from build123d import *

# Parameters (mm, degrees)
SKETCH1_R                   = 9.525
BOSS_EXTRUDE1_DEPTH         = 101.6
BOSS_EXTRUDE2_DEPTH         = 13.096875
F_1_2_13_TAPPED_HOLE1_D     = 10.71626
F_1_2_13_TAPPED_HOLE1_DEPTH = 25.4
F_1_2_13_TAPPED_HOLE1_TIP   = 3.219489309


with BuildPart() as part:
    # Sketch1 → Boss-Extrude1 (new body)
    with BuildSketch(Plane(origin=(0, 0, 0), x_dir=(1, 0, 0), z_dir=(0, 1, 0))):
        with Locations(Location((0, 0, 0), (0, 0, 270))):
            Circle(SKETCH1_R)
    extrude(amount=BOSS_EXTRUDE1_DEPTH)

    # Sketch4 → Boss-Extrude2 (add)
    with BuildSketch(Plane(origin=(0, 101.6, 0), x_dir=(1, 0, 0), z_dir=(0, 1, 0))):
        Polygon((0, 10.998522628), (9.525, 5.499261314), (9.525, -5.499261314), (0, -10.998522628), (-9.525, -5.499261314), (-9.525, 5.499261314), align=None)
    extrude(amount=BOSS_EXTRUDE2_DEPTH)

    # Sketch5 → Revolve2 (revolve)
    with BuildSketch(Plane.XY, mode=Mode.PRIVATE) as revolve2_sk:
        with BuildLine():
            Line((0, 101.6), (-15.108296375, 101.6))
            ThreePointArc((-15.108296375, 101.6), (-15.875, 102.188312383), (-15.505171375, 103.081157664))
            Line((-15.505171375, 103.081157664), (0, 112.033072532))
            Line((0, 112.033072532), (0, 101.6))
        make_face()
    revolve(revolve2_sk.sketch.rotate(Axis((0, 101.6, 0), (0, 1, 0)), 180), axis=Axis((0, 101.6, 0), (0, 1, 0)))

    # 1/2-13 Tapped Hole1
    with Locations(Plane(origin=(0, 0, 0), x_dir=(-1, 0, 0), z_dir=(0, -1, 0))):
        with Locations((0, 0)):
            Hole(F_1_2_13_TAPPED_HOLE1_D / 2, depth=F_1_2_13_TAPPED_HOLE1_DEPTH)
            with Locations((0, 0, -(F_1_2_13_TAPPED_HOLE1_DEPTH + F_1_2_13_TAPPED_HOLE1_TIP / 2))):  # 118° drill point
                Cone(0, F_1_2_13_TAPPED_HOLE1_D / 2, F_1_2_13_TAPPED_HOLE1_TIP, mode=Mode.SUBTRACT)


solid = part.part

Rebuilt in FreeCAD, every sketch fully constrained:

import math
import FreeCAD as App
import Part
import Sketcher
from FreeCAD import Vector
Q = App.Units.Quantity


def add_polygon(sketch, points):
    """Adds a closed chain of lines whose ends are joined by coincident constraints."""
    first, n = sketch.GeometryCount, len(points)
    for a, b in zip(points, points[1:] + points[:1]):
        sketch.addGeometry(Part.LineSegment(App.Vector(*a, 0), App.Vector(*b, 0)), False)
    for i in range(n):
        sketch.addConstraint(Sketcher.Constraint("Coincident", first + i, 2, first + (i + 1) % n, 1))

doc = App.newDocument("Part")
body = doc.addObject("PartDesign::Body", "Body")

# Sketch on XZ plane
sketch1 = body.newObject("Sketcher::SketchObject", "Sketch")
sketch1.AttachmentSupport = (doc.getObject("XZ_Plane"), [""])
sketch1.MapMode = "FlatFace"
sketch1.addGeometry(Part.Circle(Vector(0, 0, 0), Vector(0, 0, 1), 10), False)
sketch1.addConstraint(Sketcher.Constraint("Coincident", 0, 3, -1, 1))
sketch1.addConstraint(Sketcher.Constraint("Diameter", 0, Q("0.75 in")))
pad1 = body.newObject("PartDesign::Pad", "Pad")
pad1.Profile = sketch1
pad1.Length = Q("4 in")
pad1.Reversed = True

# Sketch on XZ plane
sketch2 = body.newObject("Sketcher::SketchObject", "Sketch001")
sketch2.AttachmentSupport = (doc.getObject("XZ_Plane"), [""])
sketch2.MapMode = "FlatFace"
sketch2.AttachmentOffset = App.Placement(Vector(0, 0, -4 * 25.4), App.Rotation())
add_polygon(sketch2, [(10, -5), (0, -11), (-10, -5), (-10, 5), (0, 11), (10, 5)])  # lines 0-5
sketch2.addConstraint(Sketcher.Constraint("Vertical", 2))
sketch2.addConstraint(Sketcher.Constraint("Vertical", 5))
sketch2.addConstraint(Sketcher.Constraint("Symmetric", 0, 2, 3, 2, -1, 1))
sketch2.addConstraint(Sketcher.Constraint("Symmetric", 1, 2, 4, 2, -1, 1))
sketch2.addConstraint(Sketcher.Constraint("PointOnObject", 0, 2, -2))
sketch2.addConstraint(Sketcher.Constraint("Parallel", 0, 3))
sketch2.addConstraint(Sketcher.Constraint("Horizontal", 2, 2, 4, 2))
sketch2.addConstraint(Sketcher.Constraint("Angle", 0, Q("-150 deg")))
sketch2.addConstraint(Sketcher.Constraint("DistanceX", 2, 2, 4, 2, Q("0.75 in")))
sketch2.addConstraint(Sketcher.Constraint("DistanceY", 2, 1, 2, 2, Q("10.998523 mm")))
pad2 = body.newObject("PartDesign::Pad", "Pad001")
pad2.Profile = sketch2
pad2.Length = Q("0.515625 in")
pad2.Reversed = True

# Sketch on XY plane
sketch3 = body.newObject("Sketcher::SketchObject", "Sketch002")
sketch3.AttachmentSupport = (doc.getObject("XY_Plane"), [""])
sketch3.MapMode = "FlatFace"
sketch3.addGeometry(Part.LineSegment(Vector(-15.1, 101.6, 0), Vector(0, 101.6, 0)), False)
sketch3.addGeometry(Part.LineSegment(Vector(0, 101.6, 0), Vector(0, 112, 0)), False)
sketch3.addGeometry(Part.LineSegment(Vector(0, 112, 0), Vector(-15.5, 103.1, 0)), False)
sketch3.addGeometry(Part.ArcOfCircle(Part.Circle(Vector(-15.1, 102.4, 0), Vector(0, 0, 1), 0.8), math.radians(120), math.radians(270)), False)
sketch3.addConstraint(Sketcher.Constraint("Coincident", 0, 2, 1, 1))
sketch3.addConstraint(Sketcher.Constraint("Coincident", 1, 2, 2, 1))
sketch3.addConstraint(Sketcher.Constraint("Tangent", 2, 2, 3, 1))
sketch3.addConstraint(Sketcher.Constraint("Tangent", 3, 2, 0, 1))
sketch3.addConstraint(Sketcher.Constraint("Horizontal", 0))
sketch3.addConstraint(Sketcher.Constraint("Vertical", 1))
sketch3.addConstraint(Sketcher.Constraint("PointOnObject", 0, 2, -2))
sketch3.addConstraint(Sketcher.Constraint("DistanceY", -1, 1, 0, 2, Q("4 in")))
sketch3.addConstraint(Sketcher.Constraint("Angle", 2, Q("-150 deg")))
sketch3.addConstraint(Sketcher.Constraint("Radius", 3, Q("0.03125 in")))
sketch3.addConstraint(Sketcher.Constraint("Distance", 2, Q("17.90383 mm")))
revolution = body.newObject("PartDesign::Revolution", "Revolution")
revolution.Profile = sketch3
revolution.ReferenceAxis = (sketch3, ["V_Axis"])
revolution.Angle = 360

# Sketch on XZ plane
sketch4 = body.newObject("Sketcher::SketchObject", "Sketch003")
sketch4.AttachmentSupport = (doc.getObject("XZ_Plane"), [""])
sketch4.MapMode = "FlatFace"
sketch4.addGeometry(Part.Circle(Vector(0, 0, 0), Vector(0, 0, 1), 5), False)
sketch4.addConstraint(Sketcher.Constraint("Coincident", 0, 3, -1, 1))
sketch4.addConstraint(Sketcher.Constraint("Diameter", 0, Q("0.4219 in")))
doc.recompute()
hole = body.newObject("PartDesign::Hole", "Hole")
hole.Profile = sketch4
hole.ThreadType = "None"
hole.Diameter = Q("0.4219 in")
hole.DepthType = "Dimension"
hole.Depth = Q("1 in")
hole.DrillPoint = "Angled"
hole.DrillPointAngle = 118

doc.recompute()
